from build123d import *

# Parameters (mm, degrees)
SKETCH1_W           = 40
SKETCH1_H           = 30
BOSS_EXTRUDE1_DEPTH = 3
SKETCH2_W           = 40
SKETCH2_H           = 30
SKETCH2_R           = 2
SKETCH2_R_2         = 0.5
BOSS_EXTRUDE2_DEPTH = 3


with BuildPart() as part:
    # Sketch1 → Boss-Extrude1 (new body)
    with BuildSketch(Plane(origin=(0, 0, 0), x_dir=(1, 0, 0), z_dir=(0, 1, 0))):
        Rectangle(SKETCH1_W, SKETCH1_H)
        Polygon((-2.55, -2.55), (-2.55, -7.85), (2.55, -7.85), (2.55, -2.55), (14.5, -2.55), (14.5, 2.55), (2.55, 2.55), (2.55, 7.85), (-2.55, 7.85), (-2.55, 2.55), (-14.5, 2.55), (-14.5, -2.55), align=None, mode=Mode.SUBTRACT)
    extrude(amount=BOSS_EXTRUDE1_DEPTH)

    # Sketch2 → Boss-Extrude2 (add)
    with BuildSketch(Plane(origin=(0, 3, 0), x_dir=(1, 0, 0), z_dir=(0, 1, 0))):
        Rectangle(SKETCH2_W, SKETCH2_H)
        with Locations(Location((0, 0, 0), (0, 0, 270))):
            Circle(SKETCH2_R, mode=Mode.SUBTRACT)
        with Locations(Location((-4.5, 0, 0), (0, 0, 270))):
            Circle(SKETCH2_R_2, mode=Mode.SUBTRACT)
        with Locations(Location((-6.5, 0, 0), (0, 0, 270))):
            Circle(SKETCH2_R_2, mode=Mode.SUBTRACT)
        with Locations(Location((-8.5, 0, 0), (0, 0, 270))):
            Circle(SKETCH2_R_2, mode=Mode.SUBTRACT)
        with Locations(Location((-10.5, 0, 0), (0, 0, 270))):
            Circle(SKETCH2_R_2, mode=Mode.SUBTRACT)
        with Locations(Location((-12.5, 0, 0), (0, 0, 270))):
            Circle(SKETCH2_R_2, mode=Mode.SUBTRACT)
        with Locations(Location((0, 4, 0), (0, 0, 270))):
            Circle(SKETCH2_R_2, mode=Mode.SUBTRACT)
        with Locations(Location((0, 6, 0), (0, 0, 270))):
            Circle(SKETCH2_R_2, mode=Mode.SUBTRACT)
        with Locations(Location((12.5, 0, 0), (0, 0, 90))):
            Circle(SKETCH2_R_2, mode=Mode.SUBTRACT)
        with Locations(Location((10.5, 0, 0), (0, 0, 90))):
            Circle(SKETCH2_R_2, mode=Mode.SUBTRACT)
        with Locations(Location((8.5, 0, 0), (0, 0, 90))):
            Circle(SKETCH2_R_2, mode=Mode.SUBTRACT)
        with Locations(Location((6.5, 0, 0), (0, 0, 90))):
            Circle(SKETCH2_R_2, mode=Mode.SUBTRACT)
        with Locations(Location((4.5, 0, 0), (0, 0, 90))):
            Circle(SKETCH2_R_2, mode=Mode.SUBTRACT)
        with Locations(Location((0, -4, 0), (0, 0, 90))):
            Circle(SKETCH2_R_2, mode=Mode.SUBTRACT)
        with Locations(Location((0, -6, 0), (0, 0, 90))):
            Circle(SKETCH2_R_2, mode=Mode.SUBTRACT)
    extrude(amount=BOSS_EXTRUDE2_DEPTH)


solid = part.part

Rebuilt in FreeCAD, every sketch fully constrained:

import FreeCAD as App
import Part
import Sketcher
from FreeCAD import Vector

doc = App.newDocument("Part")
params = doc.addObject("Spreadsheet::Sheet", "Params")
for row, (alias, value) in enumerate([
    ("sketch1_width", "40 mm"),
    ("sketch1_height", "30 mm"),
    ("sketch1_width2", "5.1 mm"),
    ("sketch1_height2", "5.3 mm"),
    ("sketch1_width3", "11.95 mm"),
    ("pad1_length", "3 mm"),
    ("sketch2_diameter", "1 mm"),
    ("sketch2_diameter2", "4 mm"),
    ("sketch2_width", "40 mm"),
    ("sketch2_height", "30 mm"),
    ("pad2_length", "3 mm"),
], start=1):
    params.set(f"A{row}", alias)
    params.set(f"B{row}", "=" + value)
    params.setAlias(f"B{row}", alias)

body = doc.addObject("PartDesign::Body", "Body")

# Sketch on XZ plane
sketch1 = body.newObject("Sketcher::SketchObject", "Sketch")
sketch1.AttachmentSupport = (doc.getObject("XZ_Plane"), [""])
sketch1.MapMode = "FlatFace"
sketch1.addGeometry(Part.LineSegment(Vector(-20, -15, 0), Vector(-20, 15, 0)), False)
sketch1.addGeometry(Part.LineSegment(Vector(-20, 15, 0), Vector(20, 15, 0)), False)
sketch1.addGeometry(Part.LineSegment(Vector(20, 15, 0), Vector(20, -15, 0)), False)
sketch1.addGeometry(Part.LineSegment(Vector(20, -15, 0), Vector(-20, -15, 0)), False)
sketch1.addGeometry(Part.LineSegment(Vector(-2.55, 7.85, 0), Vector(-2.55, 2.55, 0)), False)
sketch1.addGeometry(Part.LineSegment(Vector(-2.55, 2.55, 0), Vector(-14.5, 2.55, 0)), False)
sketch1.addGeometry(Part.LineSegment(Vector(-14.5, 2.55, 0), Vector(-14.5, -2.55, 0)), False)
sketch1.addGeometry(Part.LineSegment(Vector(-14.5, -2.55, 0), Vector(-2.55, -2.55, 0)), False)
sketch1.addGeometry(Part.LineSegment(Vector(-2.55, -2.55, 0), Vector(-2.55, -7.85, 0)), False)
sketch1.addGeometry(Part.LineSegment(Vector(-2.55, -7.85, 0), Vector(2.55, -7.85, 0)), False)
sketch1.addGeometry(Part.LineSegment(Vector(2.55, -7.85, 0), Vector(2.55, -2.55, 0)), False)
sketch1.addGeometry(Part.LineSegment(Vector(2.55, -2.55, 0), Vector(14.5, -2.55, 0)), False)
sketch1.addGeometry(Part.LineSegment(Vector(14.5, -2.55, 0), Vector(14.5, 2.55, 0)), False)
sketch1.addGeometry(Part.LineSegment(Vector(14.5, 2.55, 0), Vector(2.55, 2.55, 0)), False)
sketch1.addGeometry(Part.LineSegment(Vector(2.55, 2.55, 0), Vector(2.55, 7.85, 0)), False)
sketch1.addGeometry(Part.LineSegment(Vector(2.55, 7.85, 0), Vector(-2.55, 7.85, 0)), False)
sketch1.addConstraint(Sketcher.Constraint("Coincident", 0, 2, 1, 1))
sketch1.addConstraint(Sketcher.Constraint("Coincident", 1, 2, 2, 1))
sketch1.addConstraint(Sketcher.Constraint("Coincident", 2, 2, 3, 1))
sketch1.addConstraint(Sketcher.Constraint("Coincident", 3, 2, 0, 1))
sketch1.addConstraint(Sketcher.Constraint("Coincident", 4, 2, 5, 1))
sketch1.addConstraint(Sketcher.Constraint("Coincident", 5, 2, 6, 1))
sketch1.addConstraint(Sketcher.Constraint("Coincident", 6, 2, 7, 1))
sketch1.addConstraint(Sketcher.Constraint("Coincident", 7, 2, 8, 1))
sketch1.addConstraint(Sketcher.Constraint("Coincident", 8, 2, 9, 1))
sketch1.addConstraint(Sketcher.Constraint("Coincident", 9, 2, 10, 1))
sketch1.addConstraint(Sketcher.Constraint("Coincident", 10, 2, 11, 1))
sketch1.addConstraint(Sketcher.Constraint("Coincident", 11, 2, 12, 1))
sketch1.addConstraint(Sketcher.Constraint("Coincident", 12, 2, 13, 1))
sketch1.addConstraint(Sketcher.Constraint("Coincident", 13, 2, 14, 1))
sketch1.addConstraint(Sketcher.Constraint("Coincident", 14, 2, 15, 1))
sketch1.addConstraint(Sketcher.Constraint("Coincident", 15, 2, 4, 1))
sketch1.addConstraint(Sketcher.Constraint("Vertical", 0))
sketch1.addConstraint(Sketcher.Constraint("Horizontal", 1))
sketch1.addConstraint(Sketcher.Constraint("Vertical", 2))
sketch1.addConstraint(Sketcher.Constraint("Horizontal", 3))
sketch1.addConstraint(Sketcher.Constraint("Vertical", 4))
sketch1.addConstraint(Sketcher.Constraint("Horizontal", 5))
sketch1.addConstraint(Sketcher.Constraint("Vertical", 6))
sketch1.addConstraint(Sketcher.Constraint("Horizontal", 7))
sketch1.addConstraint(Sketcher.Constraint("Vertical", 8))
sketch1.addConstraint(Sketcher.Constraint("Horizontal", 9))
sketch1.addConstraint(Sketcher.Constraint("Vertical", 10))
sketch1.addConstraint(Sketcher.Constraint("Horizontal", 11))
sketch1.addConstraint(Sketcher.Constraint("Vertical", 12))
sketch1.addConstraint(Sketcher.Constraint("Horizontal", 13))
sketch1.addConstraint(Sketcher.Constraint("Vertical", 14))
sketch1.addConstraint(Sketcher.Constraint("Horizontal", 15))
sketch1.addConstraint(Sketcher.Constraint("Symmetric", 0, 2, 2, 2, -1, 1))
sketch1.addConstraint(Sketcher.Constraint("Symmetric", 4, 2, 10, 2, -1, 1))
sketch1.addConstraint(Sketcher.Constraint("Symmetric", 6, 2, 12, 2, -1, 1))
sketch1.addConstraint(Sketcher.Constraint("Symmetric", 8, 2, 14, 2, -1, 1))
sketch1.addConstraint(Sketcher.Constraint("Symmetric", 7, 2, 10, 2, -2))
sketch1.addConstraint(Sketcher.Constraint("Equal", 15, 6))
sketch1.addConstraint(Sketcher.Constraint("DistanceX", 1, 1, 1, 2, 40.0))
sketch1.addConstraint(Sketcher.Constraint("DistanceY", 0, 1, 0, 2, 30.0))
sketch1.addConstraint(Sketcher.Constraint("DistanceX", 9, 1, 9, 2, 5.1))
sketch1.addConstraint(Sketcher.Constraint("DistanceY", 4, 2, 4, 1, 5.3))
sketch1.addConstraint(Sketcher.Constraint("DistanceX", 5, 2, 5, 1, 11.95))
sketch1.setExpression("Constraints[38]", "Params.sketch1_width")
sketch1.setExpression("Constraints[39]", "Params.sketch1_height")
sketch1.setExpression("Constraints[40]", "Params.sketch1_width2")
sketch1.setExpression("Constraints[41]", "Params.sketch1_height2")
sketch1.setExpression("Constraints[42]", "Params.sketch1_width3")
pad1 = body.newObject("PartDesign::Pad", "Pad")
pad1.Profile = sketch1
pad1.setExpression("Length", "Params.pad1_length")
pad1.Reversed = True

# Sketch on XZ plane
sketch2 = body.newObject("Sketcher::SketchObject", "Sketch001")
sketch2.AttachmentSupport = (doc.getObject("XZ_Plane"), [""])
sketch2.MapMode = "FlatFace"
sketch2.AttachmentOffset = App.Placement(Vector(0, 0, -3), App.Rotation())
sketch2.addGeometry(Part.LineSegment(Vector(-20, -15, 0), Vector(-20, 15, 0)), False)
sketch2.addGeometry(Part.LineSegment(Vector(-20, 15, 0), Vector(20, 15, 0)), False)
sketch2.addGeometry(Part.LineSegment(Vector(20, 15, 0), Vector(20, -15, 0)), False)
sketch2.addGeometry(Part.LineSegment(Vector(20, -15, 0), Vector(-20, -15, 0)), False)
sketch2.addGeometry(Part.Circle(Vector(0, 6, 0), Vector(0, 0, 1), 0.5), False)
sketch2.addGeometry(Part.Circle(Vector(0, 4, 0), Vector(0, 0, 1), 0.5), False)
sketch2.addGeometry(Part.Circle(Vector(-12.5, 0, 0), Vector(0, 0, 1), 0.5), False)
sketch2.addGeometry(Part.Circle(Vector(-10.5, 0, 0), Vector(0, 0, 1), 0.5), False)
sketch2.addGeometry(Part.Circle(Vector(-8.5, 0, 0), Vector(0, 0, 1), 0.5), False)
sketch2.addGeometry(Part.Circle(Vector(-6.5, 0, 0), Vector(0, 0, 1), 0.5), False)
sketch2.addGeometry(Part.Circle(Vector(-4.5, 0, 0), Vector(0, 0, 1), 0.5), False)
sketch2.addGeometry(Part.Circle(Vector(0, 0, 0), Vector(0, 0, 1), 2), False)
sketch2.addGeometry(Part.Circle(Vector(4.5, 0, 0), Vector(0, 0, 1), 0.5), False)
sketch2.addGeometry(Part.Circle(Vector(6.5, 0, 0), Vector(0, 0, 1), 0.5), False)
sketch2.addGeometry(Part.Circle(Vector(8.5, 0, 0), Vector(0, 0, 1), 0.5), False)
sketch2.addGeometry(Part.Circle(Vector(10.5, 0, 0), Vector(0, 0, 1), 0.5), False)
sketch2.addGeometry(Part.Circle(Vector(12.5, 0, 0), Vector(0, 0, 1), 0.5), False)
sketch2.addGeometry(Part.Circle(Vector(0, -4, 0), Vector(0, 0, 1), 0.5), False)
sketch2.addGeometry(Part.Circle(Vector(0, -6, 0), Vector(0, 0, 1), 0.5), False)
sketch2.addConstraint(Sketcher.Constraint("Coincident", 0, 2, 1, 1))
sketch2.addConstraint(Sketcher.Constraint("Coincident", 1, 2, 2, 1))
sketch2.addConstraint(Sketcher.Constraint("Coincident", 2, 2, 3, 1))
sketch2.addConstraint(Sketcher.Constraint("Coincident", 3, 2, 0, 1))
sketch2.addConstraint(Sketcher.Constraint("Vertical", 0))
sketch2.addConstraint(Sketcher.Constraint("Horizontal", 1))
sketch2.addConstraint(Sketcher.Constraint("Vertical", 2))
sketch2.addConstraint(Sketcher.Constraint("Horizontal", 3))
sketch2.addConstraint(Sketcher.Constraint("Coincident", 11, 3, -1, 1))
sketch2.addConstraint(Sketcher.Constraint("Equal", 4, 5))
sketch2.addConstraint(Sketcher.Constraint("Equal", 5, 6))
sketch2.addConstraint(Sketcher.Constraint("Equal", 6, 7))
sketch2.addConstraint(Sketcher.Constraint("Equal", 7, 8))
sketch2.addConstraint(Sketcher.Constraint("Equal", 8, 9))
sketch2.addConstraint(Sketcher.Constraint("Equal", 9, 10))
sketch2.addConstraint(Sketcher.Constraint("Equal", 10, 12))
sketch2.addConstraint(Sketcher.Constraint("Equal", 12, 13))
sketch2.addConstraint(Sketcher.Constraint("Equal", 13, 14))
sketch2.addConstraint(Sketcher.Constraint("Equal", 14, 15))
sketch2.addConstraint(Sketcher.Constraint("Equal", 15, 16))
sketch2.addConstraint(Sketcher.Constraint("Equal", 16, 17))
sketch2.addConstraint(Sketcher.Constraint("Equal", 17, 18))
sketch2.addConstraint(Sketcher.Constraint("Symmetric", 10, 3, 12, 3, -1, 1))
sketch2.addConstraint(Sketcher.Constraint("Symmetric", 9, 3, 13, 3, -1, 1))
sketch2.addConstraint(Sketcher.Constraint("Symmetric", 8, 3, 14, 3, -1, 1))
sketch2.addConstraint(Sketcher.Constraint("Symmetric", 7, 3, 15, 3, -1, 1))
sketch2.addConstraint(Sketcher.Constraint("Symmetric", 6, 3, 16, 3, -1, 1))
sketch2.addConstraint(Sketcher.Constraint("Symmetric", 5, 3, 17, 3, -1, 1))
sketch2.addConstraint(Sketcher.Constraint("Symmetric", 4, 3, 18, 3, -1, 1))
sketch2.addConstraint(Sketcher.Constraint("Symmetric", 0, 2, 2, 2, -1, 1))
sketch2.addConstraint(Sketcher.Constraint("PointOnObject", 4, 3, -2))
sketch2.addConstraint(Sketcher.Constraint("PointOnObject", 5, 3, -2))
sketch2.addConstraint(Sketcher.Constraint("PointOnObject", 6, 3, -1))
sketch2.addConstraint(Sketcher.Constraint("PointOnObject", 7, 3, -1))
sketch2.addConstraint(Sketcher.Constraint("PointOnObject", 8, 3, -1))
sketch2.addConstraint(Sketcher.Constraint("PointOnObject", 9, 3, -1))
sketch2.addConstraint(Sketcher.Constraint("PointOnObject", 10, 3, -1))
sketch2.addConstraint(Sketcher.Constraint("Diameter", 4, 1.0))
sketch2.addConstraint(Sketcher.Constraint("Diameter", 11, 4.0))
sketch2.addConstraint(Sketcher.Constraint("DistanceX", 1, 1, 1, 2, 40.0))
sketch2.addConstraint(Sketcher.Constraint("DistanceY", 0, 1, 0, 2, 30.0))
sketch2.addConstraint(Sketcher.Constraint("DistanceY", -1, 1, 4, 3, 6.0))
sketch2.addConstraint(Sketcher.Constraint("DistanceY", -1, 1, 5, 3, 4.0))
sketch2.addConstraint(Sketcher.Constraint("DistanceX", 6, 3, 7, 3, 2.0))
sketch2.addConstraint(Sketcher.Constraint("DistanceX", 7, 3, 8, 3, 2.0))
sketch2.addConstraint(Sketcher.Constraint("DistanceX", 8, 3, 9, 3, 2.0))
sketch2.addConstraint(Sketcher.Constraint("DistanceX", 9, 3, 10, 3, 2.0))
sketch2.addConstraint(Sketcher.Constraint("DistanceX", 10, 3, 12, 3, 9.0))
sketch2.setExpression("Constraints[37]", "Params.sketch2_diameter")
sketch2.setExpression("Constraints[38]", "Params.sketch2_diameter2")
sketch2.setExpression("Constraints[39]", "Params.sketch2_width")
sketch2.setExpression("Constraints[40]", "Params.sketch2_height")
pad2 = body.newObject("PartDesign::Pad", "Pad001")
pad2.Profile = sketch2
pad2.setExpression("Length", "Params.pad2_length")
pad2.Reversed = True

doc.recompute()
